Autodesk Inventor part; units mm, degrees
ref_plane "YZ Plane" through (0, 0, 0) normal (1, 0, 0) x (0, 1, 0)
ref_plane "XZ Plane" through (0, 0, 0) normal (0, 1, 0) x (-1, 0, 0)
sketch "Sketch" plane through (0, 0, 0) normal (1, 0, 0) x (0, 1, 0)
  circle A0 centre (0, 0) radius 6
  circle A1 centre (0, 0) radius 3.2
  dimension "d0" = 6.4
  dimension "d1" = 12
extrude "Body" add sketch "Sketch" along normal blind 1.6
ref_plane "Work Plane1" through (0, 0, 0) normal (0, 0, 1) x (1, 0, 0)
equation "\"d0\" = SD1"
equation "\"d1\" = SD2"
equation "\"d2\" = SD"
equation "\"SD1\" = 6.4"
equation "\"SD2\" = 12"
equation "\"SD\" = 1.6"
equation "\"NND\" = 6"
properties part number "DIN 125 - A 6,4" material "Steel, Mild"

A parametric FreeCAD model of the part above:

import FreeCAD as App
import Part
import Sketcher
from FreeCAD import Vector

doc = App.newDocument("Part")
body = doc.addObject("PartDesign::Body", "Body")

# Sketch on YZ plane
sketch1 = body.newObject("Sketcher::SketchObject", "Sketch")
sketch1.AttachmentSupport = (doc.getObject("YZ_Plane"), [""])
sketch1.MapMode = "FlatFace"
sketch1.addGeometry([
    Part.Circle(Vector(0, 0, 0), Vector(0, 0, 1), 6),
    Part.Circle(Vector(0, 0, 0), Vector(0, 0, 1), 3.2),
], False)
sketch1.addConstraint([
    Sketcher.Constraint("Coincident", 0, 3, -1, 1),
    Sketcher.Constraint("Coincident", 1, 3, -1, 1),
    Sketcher.Constraint("Diameter", 0, 12.0),
    Sketcher.Constraint("Diameter", 1, 6.4),
])
pad1 = body.newObject("PartDesign::Pad", "Pad")
pad1.Profile = sketch1
pad1.Length = 1.6

doc.recompute()
